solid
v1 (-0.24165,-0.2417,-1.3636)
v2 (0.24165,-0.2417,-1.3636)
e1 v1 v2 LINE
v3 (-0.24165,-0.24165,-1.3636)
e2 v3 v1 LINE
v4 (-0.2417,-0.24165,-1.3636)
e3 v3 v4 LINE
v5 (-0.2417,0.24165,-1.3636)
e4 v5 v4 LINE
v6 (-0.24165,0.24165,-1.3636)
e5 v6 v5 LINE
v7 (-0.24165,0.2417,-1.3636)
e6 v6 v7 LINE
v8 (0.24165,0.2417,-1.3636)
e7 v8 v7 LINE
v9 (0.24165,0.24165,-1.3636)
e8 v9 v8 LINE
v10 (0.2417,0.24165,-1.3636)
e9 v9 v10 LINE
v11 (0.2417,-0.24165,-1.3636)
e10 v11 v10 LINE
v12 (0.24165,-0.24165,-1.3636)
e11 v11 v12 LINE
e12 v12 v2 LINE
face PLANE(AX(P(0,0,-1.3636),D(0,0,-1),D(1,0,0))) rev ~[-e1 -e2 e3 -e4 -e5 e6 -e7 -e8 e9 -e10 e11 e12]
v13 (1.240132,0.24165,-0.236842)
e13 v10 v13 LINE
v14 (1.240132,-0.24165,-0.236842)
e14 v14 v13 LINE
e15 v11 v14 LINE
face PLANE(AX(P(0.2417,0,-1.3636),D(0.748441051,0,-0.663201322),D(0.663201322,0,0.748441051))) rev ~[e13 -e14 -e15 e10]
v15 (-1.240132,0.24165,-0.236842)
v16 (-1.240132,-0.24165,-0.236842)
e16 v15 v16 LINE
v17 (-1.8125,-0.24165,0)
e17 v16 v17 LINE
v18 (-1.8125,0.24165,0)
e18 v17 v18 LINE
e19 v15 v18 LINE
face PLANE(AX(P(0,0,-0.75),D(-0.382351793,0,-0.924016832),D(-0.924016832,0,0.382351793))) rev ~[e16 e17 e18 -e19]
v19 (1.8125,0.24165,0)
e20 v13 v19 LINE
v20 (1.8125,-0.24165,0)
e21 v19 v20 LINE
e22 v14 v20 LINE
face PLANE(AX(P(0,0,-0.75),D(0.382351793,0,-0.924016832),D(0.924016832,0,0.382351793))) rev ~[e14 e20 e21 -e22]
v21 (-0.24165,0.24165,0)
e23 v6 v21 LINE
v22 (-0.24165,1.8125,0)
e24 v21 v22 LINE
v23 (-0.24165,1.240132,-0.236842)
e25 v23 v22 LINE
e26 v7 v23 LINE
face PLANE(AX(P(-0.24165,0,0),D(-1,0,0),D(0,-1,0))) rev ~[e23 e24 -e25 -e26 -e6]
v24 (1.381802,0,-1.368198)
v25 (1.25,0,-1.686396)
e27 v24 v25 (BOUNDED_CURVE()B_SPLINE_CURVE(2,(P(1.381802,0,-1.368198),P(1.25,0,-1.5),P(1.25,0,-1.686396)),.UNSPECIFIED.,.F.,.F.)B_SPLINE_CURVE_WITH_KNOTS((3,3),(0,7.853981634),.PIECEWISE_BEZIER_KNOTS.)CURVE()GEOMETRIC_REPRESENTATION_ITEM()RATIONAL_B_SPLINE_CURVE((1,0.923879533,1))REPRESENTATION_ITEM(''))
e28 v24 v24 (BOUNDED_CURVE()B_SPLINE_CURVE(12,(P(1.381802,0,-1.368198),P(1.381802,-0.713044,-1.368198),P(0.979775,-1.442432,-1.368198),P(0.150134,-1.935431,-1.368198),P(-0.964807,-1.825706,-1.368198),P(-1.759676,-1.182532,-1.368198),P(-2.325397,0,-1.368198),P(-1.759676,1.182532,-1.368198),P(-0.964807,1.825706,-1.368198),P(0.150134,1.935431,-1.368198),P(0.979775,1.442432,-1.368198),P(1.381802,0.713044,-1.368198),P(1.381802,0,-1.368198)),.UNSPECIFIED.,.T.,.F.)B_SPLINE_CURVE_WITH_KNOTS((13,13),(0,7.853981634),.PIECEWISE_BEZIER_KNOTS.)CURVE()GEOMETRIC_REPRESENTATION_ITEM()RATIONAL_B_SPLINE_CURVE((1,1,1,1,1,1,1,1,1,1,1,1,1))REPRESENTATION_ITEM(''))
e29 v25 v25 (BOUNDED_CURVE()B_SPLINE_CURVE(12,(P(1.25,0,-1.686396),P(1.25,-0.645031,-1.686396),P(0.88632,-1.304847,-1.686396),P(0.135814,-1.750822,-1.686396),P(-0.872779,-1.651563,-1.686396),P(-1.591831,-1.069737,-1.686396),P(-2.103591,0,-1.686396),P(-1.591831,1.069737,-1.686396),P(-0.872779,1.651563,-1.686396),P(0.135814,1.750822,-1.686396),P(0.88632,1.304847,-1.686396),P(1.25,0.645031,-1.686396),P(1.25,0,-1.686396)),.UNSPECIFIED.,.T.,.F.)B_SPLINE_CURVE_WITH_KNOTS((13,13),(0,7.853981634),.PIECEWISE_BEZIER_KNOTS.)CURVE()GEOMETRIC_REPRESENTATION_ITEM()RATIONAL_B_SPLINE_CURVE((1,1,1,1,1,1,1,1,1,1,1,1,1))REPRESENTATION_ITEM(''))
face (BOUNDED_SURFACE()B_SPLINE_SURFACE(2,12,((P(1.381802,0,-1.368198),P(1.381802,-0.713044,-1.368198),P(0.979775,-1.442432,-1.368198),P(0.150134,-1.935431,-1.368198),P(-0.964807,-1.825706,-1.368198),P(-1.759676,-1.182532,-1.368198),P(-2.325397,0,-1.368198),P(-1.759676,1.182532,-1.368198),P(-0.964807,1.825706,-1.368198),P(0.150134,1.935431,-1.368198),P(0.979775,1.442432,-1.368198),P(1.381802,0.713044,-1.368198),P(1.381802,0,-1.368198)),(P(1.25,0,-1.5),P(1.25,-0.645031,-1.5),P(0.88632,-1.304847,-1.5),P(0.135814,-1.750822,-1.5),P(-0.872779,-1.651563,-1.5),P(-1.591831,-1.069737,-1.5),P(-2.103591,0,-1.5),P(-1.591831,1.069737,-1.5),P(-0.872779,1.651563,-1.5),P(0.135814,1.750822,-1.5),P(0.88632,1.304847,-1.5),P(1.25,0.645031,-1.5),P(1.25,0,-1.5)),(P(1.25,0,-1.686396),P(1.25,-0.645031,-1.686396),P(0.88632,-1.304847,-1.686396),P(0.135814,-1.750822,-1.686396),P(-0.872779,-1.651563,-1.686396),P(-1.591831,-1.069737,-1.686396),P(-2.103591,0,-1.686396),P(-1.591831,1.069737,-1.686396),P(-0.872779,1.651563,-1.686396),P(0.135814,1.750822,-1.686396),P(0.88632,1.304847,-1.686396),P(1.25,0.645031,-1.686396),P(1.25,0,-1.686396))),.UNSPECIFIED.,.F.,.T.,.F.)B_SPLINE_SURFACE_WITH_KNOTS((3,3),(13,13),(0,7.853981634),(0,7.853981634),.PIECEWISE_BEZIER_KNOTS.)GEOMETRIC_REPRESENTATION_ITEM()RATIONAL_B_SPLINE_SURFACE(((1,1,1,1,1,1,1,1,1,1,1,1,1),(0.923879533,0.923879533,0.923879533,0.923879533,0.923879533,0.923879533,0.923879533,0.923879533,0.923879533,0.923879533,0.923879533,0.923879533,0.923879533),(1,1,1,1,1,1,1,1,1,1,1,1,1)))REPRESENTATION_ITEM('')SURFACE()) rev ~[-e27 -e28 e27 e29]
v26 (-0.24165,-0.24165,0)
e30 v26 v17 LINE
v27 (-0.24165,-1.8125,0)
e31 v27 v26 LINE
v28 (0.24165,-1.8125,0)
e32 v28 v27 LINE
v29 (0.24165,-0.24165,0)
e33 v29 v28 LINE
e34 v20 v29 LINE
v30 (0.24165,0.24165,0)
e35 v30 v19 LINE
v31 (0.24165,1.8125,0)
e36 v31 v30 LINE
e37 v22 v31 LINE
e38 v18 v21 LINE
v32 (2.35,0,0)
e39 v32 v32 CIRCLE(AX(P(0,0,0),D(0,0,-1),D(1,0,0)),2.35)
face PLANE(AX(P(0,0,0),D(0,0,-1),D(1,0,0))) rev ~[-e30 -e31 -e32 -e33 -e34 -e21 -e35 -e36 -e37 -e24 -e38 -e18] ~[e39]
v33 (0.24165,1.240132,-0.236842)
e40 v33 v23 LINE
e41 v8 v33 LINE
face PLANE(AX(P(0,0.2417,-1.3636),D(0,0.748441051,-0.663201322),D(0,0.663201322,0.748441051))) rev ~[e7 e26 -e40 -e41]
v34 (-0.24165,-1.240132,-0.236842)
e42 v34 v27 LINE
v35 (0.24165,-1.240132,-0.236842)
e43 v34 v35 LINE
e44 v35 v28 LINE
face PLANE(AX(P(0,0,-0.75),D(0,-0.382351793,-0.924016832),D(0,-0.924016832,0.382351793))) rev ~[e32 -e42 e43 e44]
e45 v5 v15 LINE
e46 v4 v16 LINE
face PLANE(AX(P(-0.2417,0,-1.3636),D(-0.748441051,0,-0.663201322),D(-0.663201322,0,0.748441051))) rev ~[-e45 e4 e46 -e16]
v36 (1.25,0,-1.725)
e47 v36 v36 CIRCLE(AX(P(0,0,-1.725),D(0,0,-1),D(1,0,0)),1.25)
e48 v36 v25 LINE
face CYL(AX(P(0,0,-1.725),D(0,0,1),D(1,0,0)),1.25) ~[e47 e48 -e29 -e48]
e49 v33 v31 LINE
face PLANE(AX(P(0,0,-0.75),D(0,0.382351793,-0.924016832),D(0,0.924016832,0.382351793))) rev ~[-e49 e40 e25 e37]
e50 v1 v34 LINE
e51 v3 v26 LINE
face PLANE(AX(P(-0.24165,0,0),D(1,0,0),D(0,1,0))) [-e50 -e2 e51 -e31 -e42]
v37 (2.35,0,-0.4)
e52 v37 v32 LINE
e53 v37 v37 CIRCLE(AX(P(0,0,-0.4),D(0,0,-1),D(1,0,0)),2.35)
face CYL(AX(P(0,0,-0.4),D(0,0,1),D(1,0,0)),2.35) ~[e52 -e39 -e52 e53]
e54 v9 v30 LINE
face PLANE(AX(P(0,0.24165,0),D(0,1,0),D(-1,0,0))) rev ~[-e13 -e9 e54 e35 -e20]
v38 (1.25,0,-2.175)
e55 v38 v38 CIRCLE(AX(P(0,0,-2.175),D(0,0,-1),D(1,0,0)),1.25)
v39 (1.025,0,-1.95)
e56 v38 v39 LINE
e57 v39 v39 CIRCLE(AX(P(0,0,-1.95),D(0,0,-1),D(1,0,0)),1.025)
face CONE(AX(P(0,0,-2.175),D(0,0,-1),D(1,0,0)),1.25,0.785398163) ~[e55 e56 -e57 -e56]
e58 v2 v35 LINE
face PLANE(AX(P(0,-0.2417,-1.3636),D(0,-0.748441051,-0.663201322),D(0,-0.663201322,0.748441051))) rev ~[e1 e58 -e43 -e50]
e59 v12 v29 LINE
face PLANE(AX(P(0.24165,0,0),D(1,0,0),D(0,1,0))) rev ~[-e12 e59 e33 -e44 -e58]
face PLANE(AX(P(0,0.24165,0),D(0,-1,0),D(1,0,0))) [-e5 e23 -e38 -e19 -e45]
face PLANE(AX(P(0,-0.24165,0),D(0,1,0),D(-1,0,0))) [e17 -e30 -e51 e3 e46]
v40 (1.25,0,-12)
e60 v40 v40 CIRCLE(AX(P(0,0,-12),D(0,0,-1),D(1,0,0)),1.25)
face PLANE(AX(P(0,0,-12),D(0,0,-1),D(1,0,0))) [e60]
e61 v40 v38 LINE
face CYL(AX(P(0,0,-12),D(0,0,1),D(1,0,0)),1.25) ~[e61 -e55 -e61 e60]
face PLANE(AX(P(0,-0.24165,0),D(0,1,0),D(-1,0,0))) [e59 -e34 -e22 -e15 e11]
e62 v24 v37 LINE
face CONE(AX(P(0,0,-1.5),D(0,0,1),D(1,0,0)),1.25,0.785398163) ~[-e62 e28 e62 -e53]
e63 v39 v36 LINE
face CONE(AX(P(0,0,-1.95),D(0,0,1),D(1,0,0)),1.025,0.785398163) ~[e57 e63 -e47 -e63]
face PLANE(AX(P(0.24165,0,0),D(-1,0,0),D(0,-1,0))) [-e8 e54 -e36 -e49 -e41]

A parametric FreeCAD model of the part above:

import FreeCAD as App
import Part
import Sketcher
from FreeCAD import Vector


def edges_at(feature, points):
    """Names of the edges that pass closest to the given points."""
    edges = feature.Shape.Edges
    near = lambda p: min(range(len(edges)), key=lambda i: edges[i].distToShape(Part.Vertex(*p))[0])
    return sorted({f"Edge{near(p) + 1}" for p in points})


def add_polygon(sketch, points):
    """Adds a closed chain of lines whose ends are joined by coincident constraints."""
    first, n = sketch.GeometryCount, len(points)
    for a, b in zip(points, points[1:] + points[:1]):
        sketch.addGeometry(Part.LineSegment(App.Vector(*a, 0), App.Vector(*b, 0)), False)
    for i in range(n):
        sketch.addConstraint(Sketcher.Constraint("Coincident", first + i, 2, first + (i + 1) % n, 1))

doc = App.newDocument("Part")
body = doc.addObject("PartDesign::Body", "Body")

sketch1 = body.newObject("Sketcher::SketchObject", "Sketch")
sketch1.AttachmentSupport = (doc.getObject("XZ_Plane"), [""])
sketch1.MapMode = "FlatFace"
add_polygon(sketch1, [(0, 0), (2.35, 0), (2.35, -0.4), (1.25, -1.5), (1.25, -1.73), (1.02, -1.95), (1.25, -2.17), (1.25, -12), (0, -12)])
sketch1.addConstraint([
    Sketcher.Constraint("Horizontal", 0),
    Sketcher.Constraint("Vertical", 1),
    Sketcher.Constraint("Vertical", 3),
    Sketcher.Constraint("Vertical", 6),
    Sketcher.Constraint("Horizontal", 7),
    Sketcher.Constraint("Vertical", 8),
    Sketcher.Constraint("Coincident", 8, 2, -1, 1),
    Sketcher.Constraint("Parallel", 2, 4),
    Sketcher.Constraint("Perpendicular", 4, 5),
    Sketcher.Constraint("Vertical", 3, 2, 5, 2),
    Sketcher.Constraint("Equal", 4, 5),
    Sketcher.Constraint("DistanceY", 8, 1, 8, 2, 12.0),
    Sketcher.Constraint("DistanceX", 0, 1, 0, 2, 2.35),
    Sketcher.Constraint("DistanceX", 7, 2, 7, 1, 1.25),
    Sketcher.Constraint("DistanceY", 2, 2, -1, 1, 1.5),
    Sketcher.Constraint("DistanceY", 3, 2, 3, 1, 0.225),
    Sketcher.Constraint("DistanceX", -1, 1, 4, 2, 1.025),
])
revolution = body.newObject("PartDesign::Revolution", "Revolution")
revolution.Profile = sketch1
revolution.ReferenceAxis = (sketch1, ["V_Axis"])
revolution.Angle = 360

sketch2 = body.newObject("Sketcher::SketchObject", "Sketch001")
sketch2.AttachmentSupport = (doc.getObject("XZ_Plane"), [""])
sketch2.MapMode = "FlatFace"
add_polygon(sketch2, [(0, 0), (1.45, 0), (0.24, -1.36), (0, -1.36)])
sketch2.addConstraint([
    Sketcher.Constraint("Horizontal", 0),
    Sketcher.Constraint("Horizontal", 2),
    Sketcher.Constraint("Vertical", 3),
    Sketcher.Constraint("Coincident", 3, 2, -1, 1),
    Sketcher.Constraint("DistanceX", 0, 1, 0, 2, 1.45),
    Sketcher.Constraint("DistanceX", 2, 2, 2, 1, 0.2417),
    Sketcher.Constraint("DistanceY", 3, 1, 3, 2, 1.3636),
])
pocket1 = body.newObject("PartDesign::Pocket", "Pocket")
pocket1.Profile = sketch2
pocket1.Length = 0.4833
pocket1.Midplane = True
doc.recompute()

polarpattern = body.newObject("PartDesign::PolarPattern", "PolarPattern")
polarpattern.Originals = [pocket1]
polarpattern.Axis = (doc.getObject("Z_Axis"), [""])
polarpattern.Angle = 360
polarpattern.Occurrences = 4
body.Tip = polarpattern

sketch3 = body.newObject("Sketcher::SketchObject", "Sketch002")
sketch3.AttachmentSupport = (doc.getObject("XZ_Plane"), [""])
sketch3.MapMode = "FlatFace"
add_polygon(sketch3, [(1.8, 0), (0, -0.8), (0, 0)])
sketch3.addConstraint([
    Sketcher.Constraint("Vertical", 1),
    Sketcher.Constraint("Horizontal", 2),
    Sketcher.Constraint("Coincident", 1, 2, -1, 1),
    Sketcher.Constraint("DistanceY", 1, 1, 1, 2, 0.75),
    Sketcher.Constraint("DistanceX", 2, 1, 2, 2, 1.8125),
])
pocket2 = body.newObject("PartDesign::Pocket", "Pocket001")
pocket2.Profile = sketch3
pocket2.Length = 0.4833
pocket2.Midplane = True
doc.recompute()

polarpattern2 = body.newObject("PartDesign::PolarPattern", "PolarPattern001")
polarpattern2.Originals = [pocket2]
polarpattern2.Axis = (doc.getObject("Z_Axis"), [""])
polarpattern2.Angle = 360
polarpattern2.Occurrences = 4
body.Tip = polarpattern2
doc.recompute()

fillet = body.newObject("PartDesign::Fillet", "Fillet")
fillet.Base = (polarpattern2, edges_at(polarpattern2, [(-1.25, 0, -1.5)]))
fillet.Radius = 0.45

doc.recompute()
